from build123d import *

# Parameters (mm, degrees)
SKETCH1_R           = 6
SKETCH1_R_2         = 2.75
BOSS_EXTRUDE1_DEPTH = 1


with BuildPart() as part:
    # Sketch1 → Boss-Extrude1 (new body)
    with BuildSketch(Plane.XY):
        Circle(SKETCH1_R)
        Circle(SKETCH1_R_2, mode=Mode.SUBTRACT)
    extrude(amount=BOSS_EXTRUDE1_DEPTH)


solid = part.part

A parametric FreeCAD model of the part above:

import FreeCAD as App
import Part
import Sketcher

doc = App.newDocument("Part")
body = doc.addObject("PartDesign::Body", "Body")

sketch1 = body.newObject("Sketcher::SketchObject", "Sketch")
sketch1.AttachmentSupport = (doc.getObject("XY_Plane"), [""])
sketch1.MapMode = "FlatFace"
sketch1.addGeometry([
    Part.Circle(App.Vector(0, 0, 0), App.Vector(0, 0, 1), 6),
    Part.Circle(App.Vector(0, 0, 0), App.Vector(0, 0, 1), 2.8),
], False)
sketch1.addConstraint([
    Sketcher.Constraint("Coincident", 0, 3, -1, 1),
    Sketcher.Constraint("Coincident", 1, 3, -1, 1),
    Sketcher.Constraint("Diameter", 0, 12.0),
    Sketcher.Constraint("Diameter", 1, 5.5),
])
pad1 = body.newObject("PartDesign::Pad", "Pad")
pad1.Profile = sketch1
pad1.Length = 1

doc.recompute()
